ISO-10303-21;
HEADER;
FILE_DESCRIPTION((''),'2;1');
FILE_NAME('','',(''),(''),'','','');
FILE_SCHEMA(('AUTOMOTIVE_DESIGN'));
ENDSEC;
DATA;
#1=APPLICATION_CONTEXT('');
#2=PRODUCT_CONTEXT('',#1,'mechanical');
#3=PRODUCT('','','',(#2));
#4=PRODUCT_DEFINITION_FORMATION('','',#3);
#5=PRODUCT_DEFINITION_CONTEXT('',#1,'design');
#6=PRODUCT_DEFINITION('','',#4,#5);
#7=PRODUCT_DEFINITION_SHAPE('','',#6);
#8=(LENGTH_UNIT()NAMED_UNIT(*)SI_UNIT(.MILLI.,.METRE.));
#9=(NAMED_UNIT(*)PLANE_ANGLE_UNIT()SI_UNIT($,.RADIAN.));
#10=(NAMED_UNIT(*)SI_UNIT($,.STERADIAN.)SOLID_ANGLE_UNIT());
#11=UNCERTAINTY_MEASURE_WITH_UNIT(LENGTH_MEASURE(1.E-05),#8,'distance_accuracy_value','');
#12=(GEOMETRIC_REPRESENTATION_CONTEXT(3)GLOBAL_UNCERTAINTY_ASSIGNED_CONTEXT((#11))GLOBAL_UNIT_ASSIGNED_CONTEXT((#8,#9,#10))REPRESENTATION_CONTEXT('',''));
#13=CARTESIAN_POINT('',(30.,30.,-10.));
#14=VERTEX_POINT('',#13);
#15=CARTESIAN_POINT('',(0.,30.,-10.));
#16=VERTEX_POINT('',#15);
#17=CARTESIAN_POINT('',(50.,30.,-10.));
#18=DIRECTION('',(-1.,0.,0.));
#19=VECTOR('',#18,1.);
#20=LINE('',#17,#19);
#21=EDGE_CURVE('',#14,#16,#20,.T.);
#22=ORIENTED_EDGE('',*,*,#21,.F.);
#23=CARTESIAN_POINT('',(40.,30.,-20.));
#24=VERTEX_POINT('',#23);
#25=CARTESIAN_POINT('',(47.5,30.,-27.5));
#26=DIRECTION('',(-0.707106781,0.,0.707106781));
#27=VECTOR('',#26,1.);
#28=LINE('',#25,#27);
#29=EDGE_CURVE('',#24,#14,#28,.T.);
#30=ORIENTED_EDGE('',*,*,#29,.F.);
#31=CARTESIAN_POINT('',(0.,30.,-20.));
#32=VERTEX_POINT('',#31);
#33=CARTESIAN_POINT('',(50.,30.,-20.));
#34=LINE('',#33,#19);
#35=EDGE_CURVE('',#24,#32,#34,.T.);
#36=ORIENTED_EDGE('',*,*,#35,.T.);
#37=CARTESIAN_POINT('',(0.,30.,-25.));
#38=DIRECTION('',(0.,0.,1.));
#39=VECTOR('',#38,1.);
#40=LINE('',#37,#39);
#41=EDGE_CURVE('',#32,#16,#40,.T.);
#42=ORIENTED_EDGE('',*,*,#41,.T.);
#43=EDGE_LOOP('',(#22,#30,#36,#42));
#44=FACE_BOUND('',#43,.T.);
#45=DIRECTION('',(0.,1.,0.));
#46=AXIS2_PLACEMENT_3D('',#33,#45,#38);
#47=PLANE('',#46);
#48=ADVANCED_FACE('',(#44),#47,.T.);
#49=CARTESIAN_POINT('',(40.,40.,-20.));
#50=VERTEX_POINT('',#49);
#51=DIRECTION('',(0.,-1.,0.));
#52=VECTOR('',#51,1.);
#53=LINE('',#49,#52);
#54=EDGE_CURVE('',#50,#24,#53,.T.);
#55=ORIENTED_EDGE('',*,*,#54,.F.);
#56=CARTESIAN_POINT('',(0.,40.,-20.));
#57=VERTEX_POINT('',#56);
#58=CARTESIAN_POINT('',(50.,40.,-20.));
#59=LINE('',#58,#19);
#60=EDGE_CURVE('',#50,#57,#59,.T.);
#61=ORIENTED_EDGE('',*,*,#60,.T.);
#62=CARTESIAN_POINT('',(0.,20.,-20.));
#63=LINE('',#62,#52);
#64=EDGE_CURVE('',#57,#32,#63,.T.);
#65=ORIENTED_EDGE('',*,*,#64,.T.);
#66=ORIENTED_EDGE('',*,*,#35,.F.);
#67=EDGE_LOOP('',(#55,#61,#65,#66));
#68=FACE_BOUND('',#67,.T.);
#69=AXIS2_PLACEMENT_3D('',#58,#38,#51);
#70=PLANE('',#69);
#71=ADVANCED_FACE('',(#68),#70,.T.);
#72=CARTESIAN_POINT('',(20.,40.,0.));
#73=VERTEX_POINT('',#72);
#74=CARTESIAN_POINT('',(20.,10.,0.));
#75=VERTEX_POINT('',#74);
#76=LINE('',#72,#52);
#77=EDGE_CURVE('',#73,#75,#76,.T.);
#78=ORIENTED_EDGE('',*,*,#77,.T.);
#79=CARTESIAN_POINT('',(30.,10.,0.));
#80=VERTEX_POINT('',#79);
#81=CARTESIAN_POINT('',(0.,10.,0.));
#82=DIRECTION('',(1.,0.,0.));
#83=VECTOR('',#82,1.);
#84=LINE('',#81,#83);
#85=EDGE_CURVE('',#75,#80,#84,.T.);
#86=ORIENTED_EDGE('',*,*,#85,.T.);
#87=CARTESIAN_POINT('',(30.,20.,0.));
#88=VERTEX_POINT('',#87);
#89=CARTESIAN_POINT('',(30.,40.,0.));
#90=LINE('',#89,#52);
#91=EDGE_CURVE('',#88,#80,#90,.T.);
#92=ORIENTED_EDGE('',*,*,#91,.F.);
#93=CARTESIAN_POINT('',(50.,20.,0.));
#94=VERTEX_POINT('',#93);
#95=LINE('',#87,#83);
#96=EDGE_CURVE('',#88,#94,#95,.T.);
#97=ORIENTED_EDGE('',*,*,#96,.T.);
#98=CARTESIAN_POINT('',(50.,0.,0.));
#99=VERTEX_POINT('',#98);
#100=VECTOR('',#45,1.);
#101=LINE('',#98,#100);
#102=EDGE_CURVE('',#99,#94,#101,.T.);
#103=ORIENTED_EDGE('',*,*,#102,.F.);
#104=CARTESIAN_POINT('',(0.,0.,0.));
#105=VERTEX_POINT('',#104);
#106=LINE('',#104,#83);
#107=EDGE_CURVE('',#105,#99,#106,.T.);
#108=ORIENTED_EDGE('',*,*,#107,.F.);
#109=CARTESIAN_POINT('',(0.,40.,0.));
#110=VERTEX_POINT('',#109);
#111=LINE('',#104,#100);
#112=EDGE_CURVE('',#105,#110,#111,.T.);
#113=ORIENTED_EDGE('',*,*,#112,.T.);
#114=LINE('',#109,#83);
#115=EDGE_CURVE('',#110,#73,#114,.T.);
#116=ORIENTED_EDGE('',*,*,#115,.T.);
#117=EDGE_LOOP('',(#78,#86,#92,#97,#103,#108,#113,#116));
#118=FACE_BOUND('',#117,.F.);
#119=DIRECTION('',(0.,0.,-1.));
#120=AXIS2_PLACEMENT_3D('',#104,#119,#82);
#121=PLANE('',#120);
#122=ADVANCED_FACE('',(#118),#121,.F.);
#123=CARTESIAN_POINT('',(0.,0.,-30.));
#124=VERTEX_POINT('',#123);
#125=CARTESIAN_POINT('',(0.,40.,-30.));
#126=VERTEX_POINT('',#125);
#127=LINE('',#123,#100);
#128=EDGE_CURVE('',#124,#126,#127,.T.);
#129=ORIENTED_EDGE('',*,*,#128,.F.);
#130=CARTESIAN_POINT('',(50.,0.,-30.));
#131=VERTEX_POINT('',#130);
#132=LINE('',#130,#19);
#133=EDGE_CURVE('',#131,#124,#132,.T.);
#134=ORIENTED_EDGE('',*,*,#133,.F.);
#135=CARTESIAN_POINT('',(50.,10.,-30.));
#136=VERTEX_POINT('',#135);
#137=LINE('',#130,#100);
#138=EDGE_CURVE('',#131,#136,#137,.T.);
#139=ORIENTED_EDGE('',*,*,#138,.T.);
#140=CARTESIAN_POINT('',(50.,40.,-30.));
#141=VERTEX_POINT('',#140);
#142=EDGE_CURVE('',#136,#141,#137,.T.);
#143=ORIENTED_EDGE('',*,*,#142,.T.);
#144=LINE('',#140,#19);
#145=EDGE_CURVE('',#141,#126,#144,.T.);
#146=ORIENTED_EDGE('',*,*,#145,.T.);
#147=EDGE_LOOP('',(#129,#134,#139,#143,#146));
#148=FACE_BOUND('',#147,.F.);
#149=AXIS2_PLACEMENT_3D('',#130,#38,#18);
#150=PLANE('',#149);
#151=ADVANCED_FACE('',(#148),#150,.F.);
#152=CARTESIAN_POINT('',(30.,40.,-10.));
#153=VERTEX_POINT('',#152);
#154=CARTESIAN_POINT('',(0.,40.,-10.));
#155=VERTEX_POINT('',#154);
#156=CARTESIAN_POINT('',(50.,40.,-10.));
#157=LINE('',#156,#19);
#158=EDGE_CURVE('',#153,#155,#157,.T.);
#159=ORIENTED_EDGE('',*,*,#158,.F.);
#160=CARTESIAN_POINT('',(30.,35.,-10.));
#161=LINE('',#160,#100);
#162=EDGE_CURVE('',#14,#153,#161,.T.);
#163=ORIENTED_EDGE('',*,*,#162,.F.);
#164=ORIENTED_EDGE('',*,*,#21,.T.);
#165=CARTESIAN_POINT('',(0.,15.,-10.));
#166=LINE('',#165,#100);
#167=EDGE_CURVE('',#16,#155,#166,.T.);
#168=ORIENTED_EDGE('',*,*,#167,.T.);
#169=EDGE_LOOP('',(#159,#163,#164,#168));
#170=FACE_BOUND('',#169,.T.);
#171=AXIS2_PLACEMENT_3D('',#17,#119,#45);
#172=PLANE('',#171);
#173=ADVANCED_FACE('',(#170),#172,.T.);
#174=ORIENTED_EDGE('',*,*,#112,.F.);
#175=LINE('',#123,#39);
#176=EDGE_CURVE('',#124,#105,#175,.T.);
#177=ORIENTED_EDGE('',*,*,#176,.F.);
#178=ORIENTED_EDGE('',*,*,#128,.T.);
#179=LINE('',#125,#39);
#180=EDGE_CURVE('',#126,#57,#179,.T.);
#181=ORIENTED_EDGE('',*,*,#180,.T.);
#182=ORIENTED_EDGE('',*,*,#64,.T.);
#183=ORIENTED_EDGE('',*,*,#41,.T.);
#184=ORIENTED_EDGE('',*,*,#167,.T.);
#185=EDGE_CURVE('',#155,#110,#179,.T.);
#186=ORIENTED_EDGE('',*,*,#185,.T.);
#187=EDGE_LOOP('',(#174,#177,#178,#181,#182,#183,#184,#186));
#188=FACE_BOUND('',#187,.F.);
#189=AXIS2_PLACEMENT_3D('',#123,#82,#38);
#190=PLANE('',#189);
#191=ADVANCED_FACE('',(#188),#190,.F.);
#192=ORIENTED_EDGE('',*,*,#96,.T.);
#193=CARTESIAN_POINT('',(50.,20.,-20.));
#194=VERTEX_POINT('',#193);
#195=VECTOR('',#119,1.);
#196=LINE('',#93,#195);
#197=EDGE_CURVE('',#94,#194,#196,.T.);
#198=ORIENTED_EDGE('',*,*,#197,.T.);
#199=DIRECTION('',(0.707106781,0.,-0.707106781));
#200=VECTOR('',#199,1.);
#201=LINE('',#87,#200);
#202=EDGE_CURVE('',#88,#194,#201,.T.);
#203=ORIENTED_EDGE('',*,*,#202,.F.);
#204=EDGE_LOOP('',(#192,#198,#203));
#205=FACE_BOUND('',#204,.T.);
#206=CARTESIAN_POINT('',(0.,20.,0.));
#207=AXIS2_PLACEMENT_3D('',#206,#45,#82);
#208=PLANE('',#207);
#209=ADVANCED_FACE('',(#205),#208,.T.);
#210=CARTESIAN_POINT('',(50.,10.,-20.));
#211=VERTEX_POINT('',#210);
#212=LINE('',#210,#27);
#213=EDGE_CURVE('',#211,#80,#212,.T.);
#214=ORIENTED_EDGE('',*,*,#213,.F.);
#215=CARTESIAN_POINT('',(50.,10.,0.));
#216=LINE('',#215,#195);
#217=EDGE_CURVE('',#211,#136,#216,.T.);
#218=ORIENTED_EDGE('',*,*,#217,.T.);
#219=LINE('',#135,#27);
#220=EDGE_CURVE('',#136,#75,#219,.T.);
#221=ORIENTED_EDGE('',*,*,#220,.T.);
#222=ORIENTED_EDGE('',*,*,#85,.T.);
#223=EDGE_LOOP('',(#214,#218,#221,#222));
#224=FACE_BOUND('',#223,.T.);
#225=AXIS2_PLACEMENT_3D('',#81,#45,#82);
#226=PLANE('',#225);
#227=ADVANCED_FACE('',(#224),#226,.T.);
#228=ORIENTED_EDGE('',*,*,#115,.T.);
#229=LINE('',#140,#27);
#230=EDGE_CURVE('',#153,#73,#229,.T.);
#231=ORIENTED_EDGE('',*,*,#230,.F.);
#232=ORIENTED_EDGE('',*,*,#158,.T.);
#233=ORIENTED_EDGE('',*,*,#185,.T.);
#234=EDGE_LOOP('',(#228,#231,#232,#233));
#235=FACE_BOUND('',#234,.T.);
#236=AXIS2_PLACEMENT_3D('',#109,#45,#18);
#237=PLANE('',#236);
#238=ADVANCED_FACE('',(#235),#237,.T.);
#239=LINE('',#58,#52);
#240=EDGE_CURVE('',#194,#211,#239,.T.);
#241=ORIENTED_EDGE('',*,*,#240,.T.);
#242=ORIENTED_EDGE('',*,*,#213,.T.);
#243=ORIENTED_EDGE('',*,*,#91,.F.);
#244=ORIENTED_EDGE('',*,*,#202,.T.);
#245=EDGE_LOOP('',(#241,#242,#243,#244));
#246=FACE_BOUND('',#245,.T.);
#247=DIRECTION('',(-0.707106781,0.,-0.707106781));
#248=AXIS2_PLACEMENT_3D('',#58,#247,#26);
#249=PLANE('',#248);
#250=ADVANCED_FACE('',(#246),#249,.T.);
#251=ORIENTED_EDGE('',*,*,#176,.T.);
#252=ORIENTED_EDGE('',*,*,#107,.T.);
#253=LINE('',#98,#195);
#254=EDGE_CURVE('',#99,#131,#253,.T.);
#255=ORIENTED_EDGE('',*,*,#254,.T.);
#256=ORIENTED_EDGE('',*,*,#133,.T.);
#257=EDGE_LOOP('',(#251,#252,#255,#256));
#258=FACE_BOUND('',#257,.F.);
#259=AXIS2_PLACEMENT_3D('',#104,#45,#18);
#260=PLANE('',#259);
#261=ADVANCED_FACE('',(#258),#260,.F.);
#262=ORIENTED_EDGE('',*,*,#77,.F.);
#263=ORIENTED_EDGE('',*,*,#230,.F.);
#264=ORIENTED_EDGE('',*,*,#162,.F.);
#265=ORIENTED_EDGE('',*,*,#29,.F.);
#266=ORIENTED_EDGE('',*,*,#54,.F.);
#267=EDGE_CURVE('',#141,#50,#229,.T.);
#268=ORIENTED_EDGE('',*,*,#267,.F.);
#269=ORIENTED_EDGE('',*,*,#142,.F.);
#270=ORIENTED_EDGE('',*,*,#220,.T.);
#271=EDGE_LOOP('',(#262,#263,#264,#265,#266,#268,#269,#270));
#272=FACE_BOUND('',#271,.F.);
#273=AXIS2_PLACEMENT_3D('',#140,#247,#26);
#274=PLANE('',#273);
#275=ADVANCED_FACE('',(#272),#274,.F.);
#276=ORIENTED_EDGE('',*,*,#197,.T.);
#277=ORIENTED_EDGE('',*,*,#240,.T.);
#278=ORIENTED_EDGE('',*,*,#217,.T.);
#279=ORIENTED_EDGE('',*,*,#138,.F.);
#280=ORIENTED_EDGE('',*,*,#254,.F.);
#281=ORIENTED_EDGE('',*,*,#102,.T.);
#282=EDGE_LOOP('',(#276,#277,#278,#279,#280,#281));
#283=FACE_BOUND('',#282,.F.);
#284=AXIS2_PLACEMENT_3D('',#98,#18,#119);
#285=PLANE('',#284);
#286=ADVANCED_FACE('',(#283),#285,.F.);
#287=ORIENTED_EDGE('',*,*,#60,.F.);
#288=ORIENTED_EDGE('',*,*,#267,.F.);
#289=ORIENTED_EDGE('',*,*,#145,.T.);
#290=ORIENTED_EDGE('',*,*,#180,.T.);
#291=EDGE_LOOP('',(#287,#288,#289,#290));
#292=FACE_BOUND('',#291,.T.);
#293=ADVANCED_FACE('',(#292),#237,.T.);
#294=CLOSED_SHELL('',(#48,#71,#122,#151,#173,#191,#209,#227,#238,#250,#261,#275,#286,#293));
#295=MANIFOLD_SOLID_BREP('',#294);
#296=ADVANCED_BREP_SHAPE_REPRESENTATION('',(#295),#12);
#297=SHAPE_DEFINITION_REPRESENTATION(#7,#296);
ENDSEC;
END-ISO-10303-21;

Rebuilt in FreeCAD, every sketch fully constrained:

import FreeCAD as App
import Part
import Sketcher

doc = App.newDocument("Part")
body = doc.addObject("PartDesign::Body", "Body")

# Sketch on XZ plane
sketch1 = doc.addObject("Sketcher::SketchObject", "Sketch")
body.addObject(sketch1)
sketch1.AttachmentSupport = (doc.XZ_Plane, [""])
sketch1.MapMode = "FlatFace"
sketch1.addGeometry([
    Part.LineSegment(App.Vector(0, -30, 0), App.Vector(0, 0, 0)),
    Part.LineSegment(App.Vector(0, 0, 0), App.Vector(50, 0, 0)),
    Part.LineSegment(App.Vector(50, 0, 0), App.Vector(50, -30, 0)),
    Part.LineSegment(App.Vector(50, -30, 0), App.Vector(0, -30, 0)),
], False)
sketch1.addConstraint([
    Sketcher.Constraint("Coincident", 0, 2, 1, 1),
    Sketcher.Constraint("Coincident", 1, 2, 2, 1),
    Sketcher.Constraint("Coincident", 2, 2, 3, 1),
    Sketcher.Constraint("Coincident", 3, 2, 0, 1),
    Sketcher.Constraint("Vertical", 0),
    Sketcher.Constraint("Horizontal", 1),
    Sketcher.Constraint("Vertical", 2),
    Sketcher.Constraint("Horizontal", 3),
    Sketcher.Constraint("Coincident", 0, 2, -1, 1),
    Sketcher.Constraint("DistanceX", 1, 1, 1, 2, 50.0),
    Sketcher.Constraint("DistanceY", 0, 1, 0, 2, 30.0),
])
pad1 = doc.addObject("PartDesign::Pad", "Pad")
body.addObject(pad1)
pad1.Profile = sketch1
pad1.Length = 40
pad1.Reversed = True

# Sketch on YZ plane
sketch2 = doc.addObject("Sketcher::SketchObject", "Sketch001")
body.addObject(sketch2)
sketch2.AttachmentSupport = (doc.YZ_Plane, [""])
sketch2.MapMode = "FlatFace"
sketch2.AttachmentOffset = App.Placement(App.Vector(0, 0, 50), App.Rotation())
sketch2.addGeometry([
    Part.LineSegment(App.Vector(40, -20, 0), App.Vector(40, -10, 0)),
    Part.LineSegment(App.Vector(40, -10, 0), App.Vector(30, -10, 0)),
    Part.LineSegment(App.Vector(30, -10, 0), App.Vector(30, -20, 0)),
    Part.LineSegment(App.Vector(30, -20, 0), App.Vector(40, -20, 0)),
], False)
sketch2.addConstraint([
    Sketcher.Constraint("Coincident", 0, 2, 1, 1),
    Sketcher.Constraint("Coincident", 1, 2, 2, 1),
    Sketcher.Constraint("Coincident", 2, 2, 3, 1),
    Sketcher.Constraint("Coincident", 3, 2, 0, 1),
    Sketcher.Constraint("Vertical", 0),
    Sketcher.Constraint("Horizontal", 1),
    Sketcher.Constraint("Vertical", 2),
    Sketcher.Constraint("Horizontal", 3),
    Sketcher.Constraint("Equal", 3, 0),
    Sketcher.Constraint("DistanceX", 1, 2, 1, 1, 10.0),
    Sketcher.Constraint("DistanceY", 0, 2, -1, 1, 10.0),
    Sketcher.Constraint("DistanceX", -1, 1, 0, 2, 40.0),
])
pocket1 = doc.addObject("PartDesign::Pocket", "Pocket")
body.addObject(pocket1)
pocket1.Profile = sketch2
pocket1.Type = "ThroughAll"

# Sketch on XZ plane
sketch3 = doc.addObject("Sketcher::SketchObject", "Sketch002")
body.addObject(sketch3)
sketch3.AttachmentSupport = (doc.XZ_Plane, [""])
sketch3.MapMode = "FlatFace"
sketch3.AttachmentOffset = App.Placement(App.Vector(0, 0, -40), App.Rotation())
sketch3.addGeometry([
    Part.LineSegment(App.Vector(30, 0, 0), App.Vector(50, -20, 0)),
    Part.LineSegment(App.Vector(50, -20, 0), App.Vector(50, -30, 0)),
    Part.LineSegment(App.Vector(50, -30, 0), App.Vector(20, 0, 0)),
    Part.LineSegment(App.Vector(20, 0, 0), App.Vector(30, 0, 0)),
], False)
sketch3.addConstraint([
    Sketcher.Constraint("Coincident", 0, 2, 1, 1),
    Sketcher.Constraint("Coincident", 1, 2, 2, 1),
    Sketcher.Constraint("Coincident", 2, 2, 3, 1),
    Sketcher.Constraint("Coincident", 3, 2, 0, 1),
    Sketcher.Constraint("Vertical", 1),
    Sketcher.Constraint("Horizontal", 3),
    Sketcher.Constraint("PointOnObject", 2, 2, -1),
    Sketcher.Constraint("Parallel", 0, 2),
    Sketcher.Constraint("Equal", 3, 1),
    Sketcher.Constraint("DistanceX", 3, 1, 3, 2, 10.0),
    Sketcher.Constraint("DistanceX", -1, 1, 0, 2, 50.0),
    Sketcher.Constraint("DistanceY", 0, 2, -1, 1, 20.0),
])
pocket2 = doc.addObject("PartDesign::Pocket", "Pocket001")
body.addObject(pocket2)
pocket2.Profile = sketch3
pocket2.Length = 30
pocket2.Reversed = True

# Sketch on XZ plane
sketch4 = doc.addObject("Sketcher::SketchObject", "Sketch003")
body.addObject(sketch4)
sketch4.AttachmentSupport = (doc.XZ_Plane, [""])
sketch4.MapMode = "FlatFace"
sketch4.AttachmentOffset = App.Placement(App.Vector(0, 0, -40), App.Rotation())
sketch4.addGeometry([
    Part.LineSegment(App.Vector(50, 0, 0), App.Vector(50, -20, 0)),
    Part.LineSegment(App.Vector(50, -20, 0), App.Vector(30, 0, 0)),
    Part.LineSegment(App.Vector(30, 0, 0), App.Vector(50, 0, 0)),
], False)
sketch4.addConstraint([
    Sketcher.Constraint("Coincident", 0, 2, 1, 1),
    Sketcher.Constraint("Coincident", 1, 2, 2, 1),
    Sketcher.Constraint("Coincident", 2, 2, 0, 1),
    Sketcher.Constraint("Vertical", 0),
    Sketcher.Constraint("Horizontal", 2),
    Sketcher.Constraint("PointOnObject", 1, 2, -1),
    Sketcher.Constraint("Equal", 2, 0),
    Sketcher.Constraint("DistanceX", 2, 1, 2, 2, 20.0),
    Sketcher.Constraint("DistanceX", -1, 1, 0, 2, 50.0),
])
pocket3 = doc.addObject("PartDesign::Pocket", "Pocket002")
body.addObject(pocket3)
pocket3.Profile = sketch4
pocket3.Length = 20
pocket3.Reversed = True

doc.recompute()
